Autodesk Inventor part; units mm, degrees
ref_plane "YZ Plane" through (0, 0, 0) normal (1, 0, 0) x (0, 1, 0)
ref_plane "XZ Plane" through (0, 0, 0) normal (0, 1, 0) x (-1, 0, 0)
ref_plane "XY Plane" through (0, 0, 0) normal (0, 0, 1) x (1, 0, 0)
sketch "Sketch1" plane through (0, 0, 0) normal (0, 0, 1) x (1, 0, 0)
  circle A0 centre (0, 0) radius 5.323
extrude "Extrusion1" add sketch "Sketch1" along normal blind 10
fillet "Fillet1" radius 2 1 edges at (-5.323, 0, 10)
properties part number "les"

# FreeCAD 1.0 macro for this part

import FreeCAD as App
import Part
import Sketcher
Q = App.Units.Quantity


def edges_at(feature, points):
    """Names of the edges that pass closest to the given points."""
    edges = feature.Shape.Edges
    near = lambda p: min(range(len(edges)), key=lambda i: edges[i].distToShape(Part.Vertex(*p))[0])
    return sorted({f"Edge{near(p) + 1}" for p in points})

doc = App.newDocument("Part")
body = doc.addObject("PartDesign::Body", "Body")

sketch1 = body.newObject("Sketcher::SketchObject", "Sketch")
sketch1.AttachmentSupport = (doc.getObject("XY_Plane"), [""])
sketch1.MapMode = "FlatFace"
sketch1.addGeometry(Part.Circle(App.Vector(0, 0, 0), App.Vector(0, 0, 1), 5), False)
sketch1.addConstraint([
    Sketcher.Constraint("Coincident", 0, 3, -1, 1),
    Sketcher.Constraint("Diameter", 0, Q("10.646 mm")),
])
pad1 = body.newObject("PartDesign::Pad", "Pad")
pad1.Profile = sketch1
pad1.Length = 10
doc.recompute()

fillet = body.newObject("PartDesign::Fillet", "Fillet")
fillet.Base = (pad1, edges_at(pad1, [(-5.323, 0, 10)]))
fillet.Radius = 2

doc.recompute()
